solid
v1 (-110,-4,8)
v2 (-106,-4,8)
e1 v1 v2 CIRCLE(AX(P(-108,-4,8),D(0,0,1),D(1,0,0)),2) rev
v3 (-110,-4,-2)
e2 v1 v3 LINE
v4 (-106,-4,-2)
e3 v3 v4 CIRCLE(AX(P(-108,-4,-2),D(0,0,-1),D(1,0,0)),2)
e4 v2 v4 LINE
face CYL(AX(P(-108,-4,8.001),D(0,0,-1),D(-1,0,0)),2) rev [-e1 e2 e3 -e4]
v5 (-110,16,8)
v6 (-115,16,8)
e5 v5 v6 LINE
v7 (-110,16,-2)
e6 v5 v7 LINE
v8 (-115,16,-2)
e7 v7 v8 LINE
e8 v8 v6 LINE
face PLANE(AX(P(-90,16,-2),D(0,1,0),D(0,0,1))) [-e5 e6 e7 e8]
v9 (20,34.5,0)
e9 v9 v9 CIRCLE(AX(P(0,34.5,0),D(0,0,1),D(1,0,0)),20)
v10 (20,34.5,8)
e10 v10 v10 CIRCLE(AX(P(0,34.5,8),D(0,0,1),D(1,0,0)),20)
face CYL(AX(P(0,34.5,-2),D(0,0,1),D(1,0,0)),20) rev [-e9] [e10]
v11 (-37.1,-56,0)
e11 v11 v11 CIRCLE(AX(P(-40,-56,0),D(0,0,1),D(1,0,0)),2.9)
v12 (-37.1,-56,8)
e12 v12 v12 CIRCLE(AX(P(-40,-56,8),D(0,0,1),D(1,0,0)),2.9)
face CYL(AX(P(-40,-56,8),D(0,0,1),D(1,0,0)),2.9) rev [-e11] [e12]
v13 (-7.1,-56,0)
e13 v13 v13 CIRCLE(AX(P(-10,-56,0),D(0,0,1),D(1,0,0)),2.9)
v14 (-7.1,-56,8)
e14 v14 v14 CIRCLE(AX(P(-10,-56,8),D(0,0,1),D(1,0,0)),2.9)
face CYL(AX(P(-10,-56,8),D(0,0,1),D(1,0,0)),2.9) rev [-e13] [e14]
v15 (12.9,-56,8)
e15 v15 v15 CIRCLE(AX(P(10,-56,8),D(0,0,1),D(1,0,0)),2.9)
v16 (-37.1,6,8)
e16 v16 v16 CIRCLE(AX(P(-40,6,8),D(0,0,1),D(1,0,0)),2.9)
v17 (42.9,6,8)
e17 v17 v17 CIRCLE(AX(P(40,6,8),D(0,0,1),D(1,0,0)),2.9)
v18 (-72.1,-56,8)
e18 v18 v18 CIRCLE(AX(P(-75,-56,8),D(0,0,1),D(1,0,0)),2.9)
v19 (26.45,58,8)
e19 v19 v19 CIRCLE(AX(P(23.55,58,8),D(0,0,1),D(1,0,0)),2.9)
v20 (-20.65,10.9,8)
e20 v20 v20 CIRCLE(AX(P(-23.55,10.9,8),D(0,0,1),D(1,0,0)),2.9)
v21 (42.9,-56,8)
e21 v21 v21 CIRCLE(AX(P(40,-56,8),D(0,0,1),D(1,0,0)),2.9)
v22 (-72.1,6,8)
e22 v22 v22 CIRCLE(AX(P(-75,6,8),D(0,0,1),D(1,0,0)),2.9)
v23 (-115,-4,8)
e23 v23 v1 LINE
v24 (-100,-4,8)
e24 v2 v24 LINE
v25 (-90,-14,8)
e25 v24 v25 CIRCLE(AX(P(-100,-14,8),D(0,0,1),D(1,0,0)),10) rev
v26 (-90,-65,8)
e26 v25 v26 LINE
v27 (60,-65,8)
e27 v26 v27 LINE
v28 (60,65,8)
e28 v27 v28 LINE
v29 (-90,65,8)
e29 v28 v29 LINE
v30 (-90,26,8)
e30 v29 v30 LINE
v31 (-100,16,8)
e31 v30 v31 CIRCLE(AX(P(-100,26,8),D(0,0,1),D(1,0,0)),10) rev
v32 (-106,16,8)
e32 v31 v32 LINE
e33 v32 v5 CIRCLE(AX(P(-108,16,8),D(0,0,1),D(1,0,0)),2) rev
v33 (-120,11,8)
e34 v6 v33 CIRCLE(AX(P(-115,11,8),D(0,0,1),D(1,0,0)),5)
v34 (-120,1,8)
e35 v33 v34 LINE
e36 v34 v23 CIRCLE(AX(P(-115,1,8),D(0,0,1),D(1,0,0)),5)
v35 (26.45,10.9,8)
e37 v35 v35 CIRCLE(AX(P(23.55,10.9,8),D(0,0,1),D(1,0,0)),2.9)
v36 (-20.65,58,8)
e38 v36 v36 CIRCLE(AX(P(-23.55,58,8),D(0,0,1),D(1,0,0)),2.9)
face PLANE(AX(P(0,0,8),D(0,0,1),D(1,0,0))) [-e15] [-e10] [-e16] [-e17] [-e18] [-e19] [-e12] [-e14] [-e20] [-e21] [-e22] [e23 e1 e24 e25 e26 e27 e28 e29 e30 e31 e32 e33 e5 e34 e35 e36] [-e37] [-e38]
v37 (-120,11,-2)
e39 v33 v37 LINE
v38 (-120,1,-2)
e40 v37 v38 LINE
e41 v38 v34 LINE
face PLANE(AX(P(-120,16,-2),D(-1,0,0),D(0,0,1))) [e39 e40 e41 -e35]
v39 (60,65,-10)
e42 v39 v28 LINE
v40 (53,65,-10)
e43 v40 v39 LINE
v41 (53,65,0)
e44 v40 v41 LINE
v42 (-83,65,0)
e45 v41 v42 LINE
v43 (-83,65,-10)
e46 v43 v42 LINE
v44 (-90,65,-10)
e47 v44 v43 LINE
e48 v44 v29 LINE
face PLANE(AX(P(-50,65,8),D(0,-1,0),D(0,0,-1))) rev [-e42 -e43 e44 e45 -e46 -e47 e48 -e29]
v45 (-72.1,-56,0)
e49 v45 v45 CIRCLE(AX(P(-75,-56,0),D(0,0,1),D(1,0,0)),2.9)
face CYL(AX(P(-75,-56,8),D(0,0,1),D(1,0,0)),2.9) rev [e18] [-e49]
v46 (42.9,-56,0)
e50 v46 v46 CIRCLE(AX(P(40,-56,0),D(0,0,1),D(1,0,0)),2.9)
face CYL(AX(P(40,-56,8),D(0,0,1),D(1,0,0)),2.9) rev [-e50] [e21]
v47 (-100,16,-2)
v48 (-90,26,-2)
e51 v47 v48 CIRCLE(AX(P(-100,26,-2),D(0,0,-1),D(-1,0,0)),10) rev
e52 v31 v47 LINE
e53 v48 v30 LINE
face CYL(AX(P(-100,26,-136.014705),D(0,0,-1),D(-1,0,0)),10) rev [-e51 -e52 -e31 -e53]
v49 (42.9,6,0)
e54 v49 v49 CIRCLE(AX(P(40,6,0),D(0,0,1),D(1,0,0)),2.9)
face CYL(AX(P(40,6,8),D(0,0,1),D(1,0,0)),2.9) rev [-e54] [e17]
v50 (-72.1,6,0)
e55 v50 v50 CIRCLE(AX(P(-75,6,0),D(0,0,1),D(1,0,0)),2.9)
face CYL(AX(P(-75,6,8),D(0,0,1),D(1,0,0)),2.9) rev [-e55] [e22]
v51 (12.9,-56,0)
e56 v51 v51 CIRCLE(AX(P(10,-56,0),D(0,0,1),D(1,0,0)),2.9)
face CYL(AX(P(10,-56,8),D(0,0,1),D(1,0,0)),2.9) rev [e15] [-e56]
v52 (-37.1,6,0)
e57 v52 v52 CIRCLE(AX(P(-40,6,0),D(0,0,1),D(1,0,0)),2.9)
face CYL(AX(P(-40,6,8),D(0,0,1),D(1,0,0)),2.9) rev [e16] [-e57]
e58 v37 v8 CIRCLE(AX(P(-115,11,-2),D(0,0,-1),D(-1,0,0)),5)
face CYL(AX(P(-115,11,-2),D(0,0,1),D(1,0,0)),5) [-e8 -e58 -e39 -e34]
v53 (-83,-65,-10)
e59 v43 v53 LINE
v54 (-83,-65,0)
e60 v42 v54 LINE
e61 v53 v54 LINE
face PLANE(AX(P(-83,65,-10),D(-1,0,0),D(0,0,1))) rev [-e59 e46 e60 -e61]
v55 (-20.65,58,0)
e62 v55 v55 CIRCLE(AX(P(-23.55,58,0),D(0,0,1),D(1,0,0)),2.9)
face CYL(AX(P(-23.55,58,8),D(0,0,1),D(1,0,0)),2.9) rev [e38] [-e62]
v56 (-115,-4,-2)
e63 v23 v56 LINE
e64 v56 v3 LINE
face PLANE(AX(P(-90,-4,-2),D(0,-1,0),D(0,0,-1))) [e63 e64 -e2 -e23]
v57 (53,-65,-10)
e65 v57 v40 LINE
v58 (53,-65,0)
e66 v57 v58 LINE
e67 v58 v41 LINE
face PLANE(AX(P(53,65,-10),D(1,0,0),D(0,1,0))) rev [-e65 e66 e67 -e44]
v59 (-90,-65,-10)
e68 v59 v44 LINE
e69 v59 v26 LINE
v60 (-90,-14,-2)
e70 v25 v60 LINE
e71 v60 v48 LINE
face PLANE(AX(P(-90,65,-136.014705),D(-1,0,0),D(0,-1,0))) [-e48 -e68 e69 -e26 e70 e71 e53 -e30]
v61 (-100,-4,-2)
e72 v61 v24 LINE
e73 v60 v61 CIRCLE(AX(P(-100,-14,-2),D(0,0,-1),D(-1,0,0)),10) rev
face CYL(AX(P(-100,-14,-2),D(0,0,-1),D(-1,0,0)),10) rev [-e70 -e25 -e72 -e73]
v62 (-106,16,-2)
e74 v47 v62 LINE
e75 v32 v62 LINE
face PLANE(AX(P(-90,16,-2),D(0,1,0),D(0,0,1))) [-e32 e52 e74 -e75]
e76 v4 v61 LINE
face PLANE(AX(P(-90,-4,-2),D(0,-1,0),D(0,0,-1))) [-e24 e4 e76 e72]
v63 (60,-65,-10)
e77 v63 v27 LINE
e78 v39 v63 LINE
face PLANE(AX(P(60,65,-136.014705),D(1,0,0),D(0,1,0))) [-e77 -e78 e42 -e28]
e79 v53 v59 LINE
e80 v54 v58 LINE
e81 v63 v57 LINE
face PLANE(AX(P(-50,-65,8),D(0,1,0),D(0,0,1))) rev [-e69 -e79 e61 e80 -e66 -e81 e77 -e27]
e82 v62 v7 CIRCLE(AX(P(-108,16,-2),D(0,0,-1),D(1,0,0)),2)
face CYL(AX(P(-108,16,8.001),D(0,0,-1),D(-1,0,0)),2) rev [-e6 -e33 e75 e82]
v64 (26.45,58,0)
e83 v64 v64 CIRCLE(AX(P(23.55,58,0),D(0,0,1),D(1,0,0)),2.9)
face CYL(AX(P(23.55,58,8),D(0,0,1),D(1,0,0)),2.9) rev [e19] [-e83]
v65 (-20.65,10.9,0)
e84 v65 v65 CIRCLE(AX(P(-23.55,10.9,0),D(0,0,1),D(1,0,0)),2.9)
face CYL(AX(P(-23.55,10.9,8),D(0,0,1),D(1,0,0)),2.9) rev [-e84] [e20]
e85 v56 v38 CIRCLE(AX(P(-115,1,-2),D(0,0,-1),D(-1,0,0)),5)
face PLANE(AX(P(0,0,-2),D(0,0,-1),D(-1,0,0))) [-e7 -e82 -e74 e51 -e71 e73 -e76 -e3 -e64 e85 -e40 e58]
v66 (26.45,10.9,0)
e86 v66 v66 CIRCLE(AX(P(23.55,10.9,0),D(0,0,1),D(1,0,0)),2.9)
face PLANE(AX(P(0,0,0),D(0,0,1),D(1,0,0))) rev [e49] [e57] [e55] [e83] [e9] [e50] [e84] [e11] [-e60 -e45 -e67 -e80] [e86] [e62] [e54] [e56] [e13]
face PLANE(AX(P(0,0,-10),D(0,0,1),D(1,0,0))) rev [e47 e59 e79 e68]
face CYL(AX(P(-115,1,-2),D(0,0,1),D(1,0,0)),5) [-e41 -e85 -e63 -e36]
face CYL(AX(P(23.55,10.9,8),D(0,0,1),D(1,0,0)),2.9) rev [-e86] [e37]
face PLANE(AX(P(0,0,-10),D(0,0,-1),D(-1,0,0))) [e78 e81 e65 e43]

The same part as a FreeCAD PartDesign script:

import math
import FreeCAD as App
import Part
import Sketcher
from FreeCAD import Vector


def edges_at(feature, points):
    """Names of the edges that pass closest to the given points."""
    edges = feature.Shape.Edges
    near = lambda p: min(range(len(edges)), key=lambda i: edges[i].distToShape(Part.Vertex(*p))[0])
    return sorted({f"Edge{near(p) + 1}" for p in points})


def add_polygon(sketch, points):
    """Adds a closed chain of lines whose ends are joined by coincident constraints."""
    first, n = sketch.GeometryCount, len(points)
    for a, b in zip(points, points[1:] + points[:1]):
        sketch.addGeometry(Part.LineSegment(App.Vector(*a, 0), App.Vector(*b, 0)), False)
    for i in range(n):
        sketch.addConstraint(Sketcher.Constraint("Coincident", first + i, 2, first + (i + 1) % n, 1))

doc = App.newDocument("Part")
body = doc.addObject("PartDesign::Body", "Body")

sketch1 = doc.addObject("Sketcher::SketchObject", "Sketch")
body.addObject(sketch1)
sketch1.AttachmentSupport = (doc.XY_Plane, [""])
sketch1.MapMode = "FlatFace"
add_polygon(sketch1, [(-50, 65), (-50, -65), (50, -65), (50, 65)])
sketch1.addConstraint(Sketcher.Constraint("Vertical", 0))
sketch1.addConstraint(Sketcher.Constraint("Horizontal", 1))
sketch1.addConstraint(Sketcher.Constraint("Vertical", 2))
sketch1.addConstraint(Sketcher.Constraint("Horizontal", 3))
sketch1.addConstraint(Sketcher.Constraint("Symmetric", 0, 2, 2, 2, -1, 1))
sketch1.addConstraint(Sketcher.Constraint("DistanceX", 1, 1, 1, 2, 100.0))
sketch1.addConstraint(Sketcher.Constraint("DistanceY", 0, 2, 0, 1, 130.0))
pad1 = doc.addObject("PartDesign::Pad", "Pad")
body.addObject(pad1)
pad1.Profile = sketch1
pad1.Length = 8

sketch2 = doc.addObject("Sketcher::SketchObject", "Sketch001")
body.addObject(sketch2)
sketch2.AttachmentSupport = (doc.XY_Plane, [""])
sketch2.MapMode = "FlatFace"
sketch2.AttachmentOffset = App.Placement(Vector(0, 0, 8), App.Rotation())
sketch2.addGeometry(Part.Circle(Vector(-40, 6, 0), Vector(0, 0, 1), 2.9), False)
sketch2.addGeometry(Part.Circle(Vector(40, 6, 0), Vector(0, 0, 1), 2.9), False)
sketch2.addGeometry(Part.Circle(Vector(-40, -56, 0), Vector(0, 0, 1), 2.9), False)
sketch2.addGeometry(Part.Circle(Vector(40, -56, 0), Vector(0, 0, 1), 2.9), False)
sketch2.addGeometry(Part.Circle(Vector(-23.6, 58, 0), Vector(0, 0, 1), 2.9), False)
sketch2.addGeometry(Part.Circle(Vector(23.6, 58, 0), Vector(0, 0, 1), 2.9), False)
sketch2.addGeometry(Part.Circle(Vector(-23.6, 10.9, 0), Vector(0, 0, 1), 2.9), False)
sketch2.addGeometry(Part.Circle(Vector(23.6, 10.9, 0), Vector(0, 0, 1), 2.9), False)
sketch2.addGeometry(Part.Circle(Vector(-10, -56, 0), Vector(0, 0, 1), 2.9), False)
sketch2.addGeometry(Part.Circle(Vector(10, -56, 0), Vector(0, 0, 1), 2.9), False)
sketch2.addConstraint(Sketcher.Constraint("Equal", 0, 1))
sketch2.addConstraint(Sketcher.Constraint("Equal", 1, 2))
sketch2.addConstraint(Sketcher.Constraint("Equal", 2, 3))
sketch2.addConstraint(Sketcher.Constraint("Equal", 3, 4))
sketch2.addConstraint(Sketcher.Constraint("Equal", 4, 5))
sketch2.addConstraint(Sketcher.Constraint("Equal", 5, 6))
sketch2.addConstraint(Sketcher.Constraint("Equal", 6, 7))
sketch2.addConstraint(Sketcher.Constraint("Equal", 7, 8))
sketch2.addConstraint(Sketcher.Constraint("Equal", 8, 9))
sketch2.addConstraint(Sketcher.Constraint("Symmetric", 0, 3, 1, 3, -2))
sketch2.addConstraint(Sketcher.Constraint("Symmetric", 2, 3, 3, 3, -2))
sketch2.addConstraint(Sketcher.Constraint("Symmetric", 4, 3, 5, 3, -2))
sketch2.addConstraint(Sketcher.Constraint("Symmetric", 6, 3, 7, 3, -2))
sketch2.addConstraint(Sketcher.Constraint("Symmetric", 8, 3, 9, 3, -2))
sketch2.addConstraint(Sketcher.Constraint("Horizontal", 3, 3, 8, 3))
sketch2.addConstraint(Sketcher.Constraint("Vertical", 0, 3, 2, 3))
sketch2.addConstraint(Sketcher.Constraint("Vertical", 4, 3, 6, 3))
sketch2.addConstraint(Sketcher.Constraint("Diameter", 0, 5.8))
sketch2.addConstraint(Sketcher.Constraint("DistanceX", 0, 3, -1, 1, 40.0))
sketch2.addConstraint(Sketcher.Constraint("DistanceY", -1, 1, 0, 3, 6.0))
sketch2.addConstraint(Sketcher.Constraint("DistanceY", 2, 3, -1, 1, 56.0))
sketch2.addConstraint(Sketcher.Constraint("DistanceY", -1, 1, 4, 3, 58.0))
sketch2.addConstraint(Sketcher.Constraint("DistanceX", 8, 3, -1, 1, 10.0))
sketch2.addConstraint(Sketcher.Constraint("DistanceY", -1, 1, 6, 3, 10.9))
sketch2.addConstraint(Sketcher.Constraint("DistanceX", 4, 3, 5, 3, 47.1))
doc.recompute()
hole = doc.addObject("PartDesign::Hole", "Hole")
body.addObject(hole)
hole.Profile = sketch2
hole.ThreadType = "None"
hole.Diameter = 5.8
hole.DepthType = "ThroughAll"

sketch3 = doc.addObject("Sketcher::SketchObject", "Sketch002")
body.addObject(sketch3)
sketch3.AttachmentSupport = (doc.XY_Plane, [""])
sketch3.MapMode = "FlatFace"
sketch3.AttachmentOffset = App.Placement(Vector(0, 0, 8), App.Rotation())
sketch3.addGeometry(Part.Circle(Vector(0, 34, 0), Vector(0, 0, 1), 20), False)
sketch3.addConstraint(Sketcher.Constraint("PointOnObject", 0, 3, -2))
sketch3.addConstraint(Sketcher.Constraint("Diameter", 0, 40.0))
sketch3.addConstraint(Sketcher.Constraint("DistanceY", -1, 1, 0, 3, 34.5))
pocket1 = doc.addObject("PartDesign::Pocket", "Pocket")
body.addObject(pocket1)
pocket1.Profile = sketch3
pocket1.Length = 10

sketch4 = doc.addObject("Sketcher::SketchObject", "Sketch003")
body.addObject(sketch4)
sketch4.AttachmentSupport = (doc.XY_Plane, [""])
sketch4.MapMode = "FlatFace"
sketch4.AttachmentOffset = App.Placement(Vector(0, 0, 8), App.Rotation())
add_polygon(sketch4, [(-90, 65), (-90, -65), (-50, -65), (-50, 65)])
add_polygon(sketch4, [(50, 65), (50, -65), (60, -65), (60, 65)])
sketch4.addConstraint(Sketcher.Constraint("Vertical", 0))
sketch4.addConstraint(Sketcher.Constraint("Horizontal", 1))
sketch4.addConstraint(Sketcher.Constraint("Vertical", 2))
sketch4.addConstraint(Sketcher.Constraint("Horizontal", 3))
sketch4.addConstraint(Sketcher.Constraint("Vertical", 4))
sketch4.addConstraint(Sketcher.Constraint("Horizontal", 5))
sketch4.addConstraint(Sketcher.Constraint("Vertical", 6))
sketch4.addConstraint(Sketcher.Constraint("Horizontal", 7))
sketch4.addConstraint(Sketcher.Constraint("Symmetric", 2, 2, 4, 2, -1, 1))
sketch4.addConstraint(Sketcher.Constraint("Horizontal", 1, 2, 4, 2))
sketch4.addConstraint(Sketcher.Constraint("Horizontal", 3, 2, 6, 2))
sketch4.addConstraint(Sketcher.Constraint("DistanceX", 1, 1, 1, 2, 40.0))
sketch4.addConstraint(Sketcher.Constraint("DistanceX", 5, 1, 5, 2, 10.0))
sketch4.addConstraint(Sketcher.Constraint("DistanceY", 0, 2, 0, 1, 130.0))
sketch4.addConstraint(Sketcher.Constraint("DistanceX", 0, 2, -1, 1, 90.0))
pad2 = doc.addObject("PartDesign::Pad", "Pad001")
body.addObject(pad2)
pad2.Profile = sketch4
pad2.Length = 8
pad2.Reversed = True

sketch5 = doc.addObject("Sketcher::SketchObject", "Sketch004")
body.addObject(sketch5)
sketch5.AttachmentSupport = (doc.XY_Plane, [""])
sketch5.MapMode = "FlatFace"
sketch5.AttachmentOffset = App.Placement(Vector(0, 0, 8), App.Rotation())
sketch5.addGeometry(Part.Circle(Vector(-75, 6, 0), Vector(0, 0, 1), 2.9), False)
sketch5.addGeometry(Part.Circle(Vector(-75, -56, 0), Vector(0, 0, 1), 2.9), False)
sketch5.addConstraint(Sketcher.Constraint("Equal", 0, 1))
sketch5.addConstraint(Sketcher.Constraint("Vertical", 0, 3, 1, 3))
sketch5.addConstraint(Sketcher.Constraint("Diameter", 0, 5.8))
sketch5.addConstraint(Sketcher.Constraint("DistanceX", 0, 3, -1, 1, 75.0))
sketch5.addConstraint(Sketcher.Constraint("DistanceY", -1, 1, 0, 3, 6.0))
sketch5.addConstraint(Sketcher.Constraint("DistanceY", 1, 3, -1, 1, 56.0))
doc.recompute()
hole2 = doc.addObject("PartDesign::Hole", "Hole001")
body.addObject(hole2)
hole2.Profile = sketch5
hole2.ThreadType = "None"
hole2.Diameter = 5.8
hole2.DepthType = "ThroughAll"

sketch6 = doc.addObject("Sketcher::SketchObject", "Sketch005")
body.addObject(sketch6)
sketch6.AttachmentSupport = (doc.XY_Plane, [""])
sketch6.MapMode = "FlatFace"
add_polygon(sketch6, [(60, 65), (60, -65), (53, -65), (53, 65)])
add_polygon(sketch6, [(-83, 65), (-83, -65), (-90, -65), (-90, 65)])
sketch6.addConstraint(Sketcher.Constraint("Vertical", 0))
sketch6.addConstraint(Sketcher.Constraint("Horizontal", 1))
sketch6.addConstraint(Sketcher.Constraint("Vertical", 2))
sketch6.addConstraint(Sketcher.Constraint("Horizontal", 3))
sketch6.addConstraint(Sketcher.Constraint("Vertical", 4))
sketch6.addConstraint(Sketcher.Constraint("Horizontal", 5))
sketch6.addConstraint(Sketcher.Constraint("Vertical", 6))
sketch6.addConstraint(Sketcher.Constraint("Horizontal", 7))
sketch6.addConstraint(Sketcher.Constraint("Horizontal", 1, 2, 4, 2))
sketch6.addConstraint(Sketcher.Constraint("Horizontal", 3, 2, 6, 2))
sketch6.addConstraint(Sketcher.Constraint("Equal", 3, 5))
sketch6.addConstraint(Sketcher.Constraint("DistanceX", 1, 2, 1, 1, 7.0))
sketch6.addConstraint(Sketcher.Constraint("DistanceY", 0, 2, 0, 1, 130.0))
sketch6.addConstraint(Sketcher.Constraint("DistanceX", -1, 1, 0, 2, 60.0))
sketch6.addConstraint(Sketcher.Constraint("DistanceY", 0, 2, -1, 1, 65.0))
sketch6.addConstraint(Sketcher.Constraint("DistanceX", 4, 2, -1, 1, 83.0))
pad3 = doc.addObject("PartDesign::Pad", "Pad002")
body.addObject(pad3)
pad3.Profile = sketch6
pad3.Length = 10
pad3.Reversed = True

sketch7 = doc.addObject("Sketcher::SketchObject", "Sketch006")
body.addObject(sketch7)
sketch7.AttachmentSupport = (doc.XY_Plane, [""])
sketch7.MapMode = "FlatFace"
sketch7.AttachmentOffset = App.Placement(Vector(0, 0, 8), App.Rotation())
add_polygon(sketch7, [(-120, 16), (-120, -4), (-90, -4), (-90, 16)])
sketch7.addConstraint(Sketcher.Constraint("Vertical", 0))
sketch7.addConstraint(Sketcher.Constraint("Horizontal", 1))
sketch7.addConstraint(Sketcher.Constraint("Vertical", 2))
sketch7.addConstraint(Sketcher.Constraint("Horizontal", 3))
sketch7.addConstraint(Sketcher.Constraint("DistanceX", 1, 1, 1, 2, 30.0))
sketch7.addConstraint(Sketcher.Constraint("DistanceY", 0, 2, 0, 1, 20.0))
sketch7.addConstraint(Sketcher.Constraint("DistanceX", 0, 2, -1, 1, 120.0))
sketch7.addConstraint(Sketcher.Constraint("DistanceY", 0, 2, -1, 1, 4.0))
pad4 = doc.addObject("PartDesign::Pad", "Pad003")
body.addObject(pad4)
pad4.Profile = sketch7
pad4.Length = 10
pad4.Reversed = True
doc.recompute()

fillet = doc.addObject("PartDesign::Fillet", "Fillet")
body.addObject(fillet)
fillet.Base = (pad4, edges_at(pad4, [(-90, 16, 3), (-90, -4, 3)]))
fillet.Radius = 10
doc.recompute()

fillet2 = doc.addObject("PartDesign::Fillet", "Fillet001")
body.addObject(fillet2)
fillet2.Base = (fillet, edges_at(fillet, [(-120, -4, 3), (-120, 16, 3)]))
fillet2.Radius = 5

sketch8 = doc.addObject("Sketcher::SketchObject", "Sketch007")
body.addObject(sketch8)
sketch8.AttachmentSupport = (doc.XY_Plane, [""])
sketch8.MapMode = "FlatFace"
sketch8.AttachmentOffset = App.Placement(Vector(0, 0, -2), App.Rotation())
sketch8.addGeometry(Part.LineSegment(Vector(-110, 16, 0), Vector(-106, 16, 0)), False)
sketch8.addGeometry(Part.ArcOfCircle(Part.Circle(Vector(-108, 16, 0), Vector(0, 0, 1), 2), math.radians(180), math.radians(360)), False)
sketch8.addConstraint(Sketcher.Constraint("Coincident", 0, 1, 1, 1))
sketch8.addConstraint(Sketcher.Constraint("Coincident", 1, 2, 0, 2))
sketch8.addConstraint(Sketcher.Constraint("Horizontal", 0))
sketch8.addConstraint(Sketcher.Constraint("Horizontal", 1, 3, 0, 1))
sketch8.addConstraint(Sketcher.Constraint("Radius", 1, 2.0))
sketch8.addConstraint(Sketcher.Constraint("DistanceX", 1, 3, -1, 1, 108.0))
sketch8.addConstraint(Sketcher.Constraint("DistanceY", -1, 1, 1, 3, 16.0))
pocket2 = doc.addObject("PartDesign::Pocket", "Pocket001")
body.addObject(pocket2)
pocket2.Profile = sketch8
pocket2.Type = "UpToFirst"
pocket2.Reversed = True

sketch9 = doc.addObject("Sketcher::SketchObject", "Sketch008")
body.addObject(sketch9)
sketch9.AttachmentSupport = (doc.XY_Plane, [""])
sketch9.MapMode = "FlatFace"
sketch9.AttachmentOffset = App.Placement(Vector(0, 0, -2), App.Rotation())
sketch9.addGeometry(Part.LineSegment(Vector(-106, -4, 0), Vector(-110, -4, 0)), False)
sketch9.addGeometry(Part.ArcOfCircle(Part.Circle(Vector(-108, -4, 0), Vector(0, 0, 1), 2), math.radians(0), math.radians(180)), False)
sketch9.addConstraint(Sketcher.Constraint("Coincident", 0, 1, 1, 1))
sketch9.addConstraint(Sketcher.Constraint("Coincident", 1, 2, 0, 2))
sketch9.addConstraint(Sketcher.Constraint("Horizontal", 0))
sketch9.addConstraint(Sketcher.Constraint("Horizontal", 1, 3, 0, 1))
sketch9.addConstraint(Sketcher.Constraint("Radius", 1, 2.0))
sketch9.addConstraint(Sketcher.Constraint("DistanceX", 1, 3, -1, 1, 108.0))
sketch9.addConstraint(Sketcher.Constraint("DistanceY", 1, 3, -1, 1, 4.0))
pocket3 = doc.addObject("PartDesign::Pocket", "Pocket002")
body.addObject(pocket3)
pocket3.Profile = sketch9
pocket3.Type = "UpToFirst"
pocket3.Reversed = True

doc.recompute()
